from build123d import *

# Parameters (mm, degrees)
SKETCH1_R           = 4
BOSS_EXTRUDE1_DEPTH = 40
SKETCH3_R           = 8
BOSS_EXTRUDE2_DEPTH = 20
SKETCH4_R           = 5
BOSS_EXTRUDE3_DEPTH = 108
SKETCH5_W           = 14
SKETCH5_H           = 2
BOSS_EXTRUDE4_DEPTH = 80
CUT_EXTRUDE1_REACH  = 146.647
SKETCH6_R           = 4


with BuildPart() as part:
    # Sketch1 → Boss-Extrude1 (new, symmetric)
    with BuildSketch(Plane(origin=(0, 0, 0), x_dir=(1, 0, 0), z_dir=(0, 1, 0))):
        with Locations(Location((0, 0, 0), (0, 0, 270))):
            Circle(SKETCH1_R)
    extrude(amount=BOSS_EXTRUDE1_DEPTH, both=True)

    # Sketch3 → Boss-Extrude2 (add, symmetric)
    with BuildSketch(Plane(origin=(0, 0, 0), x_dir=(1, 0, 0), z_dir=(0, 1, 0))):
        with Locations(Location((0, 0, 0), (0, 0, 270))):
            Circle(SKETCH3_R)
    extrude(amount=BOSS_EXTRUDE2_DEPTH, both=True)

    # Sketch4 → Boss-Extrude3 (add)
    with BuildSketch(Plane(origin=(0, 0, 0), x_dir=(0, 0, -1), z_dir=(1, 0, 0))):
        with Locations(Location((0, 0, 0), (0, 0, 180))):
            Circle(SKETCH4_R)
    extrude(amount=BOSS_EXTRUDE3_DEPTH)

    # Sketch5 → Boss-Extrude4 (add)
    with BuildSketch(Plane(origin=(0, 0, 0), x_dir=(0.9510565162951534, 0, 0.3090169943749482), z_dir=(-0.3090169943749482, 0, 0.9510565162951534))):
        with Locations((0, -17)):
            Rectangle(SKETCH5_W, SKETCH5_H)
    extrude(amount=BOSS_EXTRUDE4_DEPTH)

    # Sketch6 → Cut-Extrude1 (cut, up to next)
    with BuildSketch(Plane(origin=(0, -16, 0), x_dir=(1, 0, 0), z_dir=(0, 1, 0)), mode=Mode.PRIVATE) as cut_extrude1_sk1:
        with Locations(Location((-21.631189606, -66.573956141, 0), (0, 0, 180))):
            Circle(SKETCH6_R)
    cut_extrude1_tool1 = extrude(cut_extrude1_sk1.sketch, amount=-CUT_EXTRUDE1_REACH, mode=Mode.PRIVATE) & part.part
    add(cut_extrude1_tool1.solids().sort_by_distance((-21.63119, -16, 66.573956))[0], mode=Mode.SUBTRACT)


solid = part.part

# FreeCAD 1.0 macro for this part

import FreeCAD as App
import Part
import Sketcher

V = App.Vector
Q = App.Units.Quantity


def add_polygon(sketch, points):
    """Adds a closed chain of lines whose ends are joined by coincident constraints."""
    first, n = sketch.GeometryCount, len(points)
    for a, b in zip(points, points[1:] + points[:1]):
        sketch.addGeometry(Part.LineSegment(App.Vector(*a, 0), App.Vector(*b, 0)), False)
    for i in range(n):
        sketch.addConstraint(Sketcher.Constraint("Coincident", first + i, 2, first + (i + 1) % n, 1))

doc = App.newDocument("Part")
body = doc.addObject("PartDesign::Body", "Body")

sketch1 = body.newObject("Sketcher::SketchObject", "Sketch")
sketch1.AttachmentSupport = (doc.getObject("XZ_Plane"), [""])
sketch1.MapMode = "FlatFace"
sketch1.addGeometry(Part.Circle(V(0, 0, 0), V(0, 0, 1), 4), False)
sketch1.addConstraint([
    Sketcher.Constraint("Coincident", 0, 3, -1, 1),
    Sketcher.Constraint("Diameter", 0, Q("8 mm")),
])
pad1 = body.newObject("PartDesign::Pad", "Pad")
pad1.Profile = sketch1
pad1.Length = 80
pad1.Midplane = True

sketch2 = body.newObject("Sketcher::SketchObject", "Sketch001")
sketch2.AttachmentSupport = (doc.getObject("XZ_Plane"), [""])
sketch2.MapMode = "FlatFace"
sketch2.addGeometry(Part.Circle(V(0, 0, 0), V(0, 0, 1), 8), False)
sketch2.addConstraint([
    Sketcher.Constraint("Coincident", 0, 3, -1, 1),
    Sketcher.Constraint("Diameter", 0, Q("16 mm")),
])
pad2 = body.newObject("PartDesign::Pad", "Pad001")
pad2.Profile = sketch2
pad2.Length = 40
pad2.Midplane = True

sketch3 = body.newObject("Sketcher::SketchObject", "Sketch002")
sketch3.AttachmentSupport = (doc.getObject("YZ_Plane"), [""])
sketch3.MapMode = "FlatFace"
sketch3.addGeometry(Part.Circle(V(0, 0, 0), V(0, 0, 1), 5), False)
sketch3.addConstraint([
    Sketcher.Constraint("Coincident", 0, 3, -1, 1),
    Sketcher.Constraint("Diameter", 0, Q("10 mm")),
])
pad3 = body.newObject("PartDesign::Pad", "Pad002")
pad3.Profile = sketch3
pad3.Length = 108

sketch4 = body.newObject("Sketcher::SketchObject", "Sketch003")
sketch4.Placement = App.Placement(V(0, 0, 0), App.Rotation(V(0.951056516, 0, 0.309016994), V(0, 0.999999999, 0), V(-0.309016994, 0, 0.951056516), "ZXY"))
add_polygon(sketch4, [(-7, -16), (-7, -18), (7, -18), (7, -16)])
sketch4.addConstraint([
    Sketcher.Constraint("Vertical", 0),
    Sketcher.Constraint("Horizontal", 1),
    Sketcher.Constraint("Vertical", 2),
    Sketcher.Constraint("Horizontal", 3),
    Sketcher.Constraint("DistanceX", 1, 1, 1, 2, Q("14 mm")),
    Sketcher.Constraint("DistanceY", 0, 2, 0, 1, Q("2 mm")),
    Sketcher.Constraint("DistanceX", 0, 2, -1, 1, Q("7 mm")),
    Sketcher.Constraint("DistanceY", 0, 2, -1, 1, Q("18 mm")),
])
pad4 = body.newObject("PartDesign::Pad", "Pad003")
pad4.Profile = sketch4
pad4.Length = 80

sketch5 = body.newObject("Sketcher::SketchObject", "Sketch004")
sketch5.AttachmentSupport = (doc.getObject("XZ_Plane"), [""])
sketch5.MapMode = "FlatFace"
sketch5.AttachmentOffset = App.Placement(V(0, 0, 16), App.Rotation())
sketch5.addGeometry(Part.Circle(V(-21.63119, 66.573956, 0), V(0, 0, 1), 4), False)
sketch5.addConstraint([
    Sketcher.Constraint("Diameter", 0, Q("8 mm")),
    Sketcher.Constraint("DistanceX", 0, 3, -1, 1, Q("21.63119 mm")),
    Sketcher.Constraint("DistanceY", -1, 1, 0, 3, Q("66.573956 mm")),
])
pocket1 = body.newObject("PartDesign::Pocket", "Pocket")
pocket1.Profile = sketch5
pocket1.Type = "UpToFirst"
pocket1.Reversed = True

doc.recompute()
